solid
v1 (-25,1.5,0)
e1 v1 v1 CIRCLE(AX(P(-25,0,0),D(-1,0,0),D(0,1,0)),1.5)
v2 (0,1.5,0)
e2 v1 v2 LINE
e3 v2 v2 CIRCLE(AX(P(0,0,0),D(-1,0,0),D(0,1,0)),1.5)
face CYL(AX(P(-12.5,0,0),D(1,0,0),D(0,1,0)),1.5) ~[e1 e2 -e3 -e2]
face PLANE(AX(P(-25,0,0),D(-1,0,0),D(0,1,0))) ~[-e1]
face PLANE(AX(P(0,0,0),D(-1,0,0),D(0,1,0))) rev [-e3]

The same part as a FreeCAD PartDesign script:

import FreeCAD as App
import Part
import Sketcher
from FreeCAD import Vector
Q = App.Units.Quantity

doc = App.newDocument("Part")
body = doc.addObject("PartDesign::Body", "Body")

# Sketch on XY plane
sketch1 = body.newObject("Sketcher::SketchObject", "Sketch")
sketch1.AttachmentSupport = (doc.getObject("XY_Plane"), [""])
sketch1.MapMode = "FlatFace"
sketch1.addGeometry(Part.LineSegment(Vector(-25, 1.5, 0), Vector(-25, 0, 0)), False)
sketch1.addGeometry(Part.LineSegment(Vector(-25, 0, 0), Vector(0, 0, 0)), False)
sketch1.addGeometry(Part.LineSegment(Vector(0, 0, 0), Vector(0, 1.5, 0)), False)
sketch1.addGeometry(Part.LineSegment(Vector(0, 1.5, 0), Vector(-25, 1.5, 0)), False)
sketch1.addConstraint(Sketcher.Constraint("Coincident", 0, 2, 1, 1))
sketch1.addConstraint(Sketcher.Constraint("Coincident", 1, 2, 2, 1))
sketch1.addConstraint(Sketcher.Constraint("Coincident", 2, 2, 3, 1))
sketch1.addConstraint(Sketcher.Constraint("Coincident", 3, 2, 0, 1))
sketch1.addConstraint(Sketcher.Constraint("Vertical", 0))
sketch1.addConstraint(Sketcher.Constraint("Horizontal", 1))
sketch1.addConstraint(Sketcher.Constraint("Vertical", 2))
sketch1.addConstraint(Sketcher.Constraint("Horizontal", 3))
sketch1.addConstraint(Sketcher.Constraint("Coincident", 1, 2, -1, 1))
sketch1.addConstraint(Sketcher.Constraint("DistanceX", 1, 1, 1, 2, Q("25 mm")))
sketch1.addConstraint(Sketcher.Constraint("DistanceY", 0, 2, 0, 1, Q("1.5 mm")))
revolution = body.newObject("PartDesign::Revolution", "Revolution")
revolution.Profile = sketch1
revolution.ReferenceAxis = (sketch1, ["H_Axis"])
revolution.Angle = 360

doc.recompute()
